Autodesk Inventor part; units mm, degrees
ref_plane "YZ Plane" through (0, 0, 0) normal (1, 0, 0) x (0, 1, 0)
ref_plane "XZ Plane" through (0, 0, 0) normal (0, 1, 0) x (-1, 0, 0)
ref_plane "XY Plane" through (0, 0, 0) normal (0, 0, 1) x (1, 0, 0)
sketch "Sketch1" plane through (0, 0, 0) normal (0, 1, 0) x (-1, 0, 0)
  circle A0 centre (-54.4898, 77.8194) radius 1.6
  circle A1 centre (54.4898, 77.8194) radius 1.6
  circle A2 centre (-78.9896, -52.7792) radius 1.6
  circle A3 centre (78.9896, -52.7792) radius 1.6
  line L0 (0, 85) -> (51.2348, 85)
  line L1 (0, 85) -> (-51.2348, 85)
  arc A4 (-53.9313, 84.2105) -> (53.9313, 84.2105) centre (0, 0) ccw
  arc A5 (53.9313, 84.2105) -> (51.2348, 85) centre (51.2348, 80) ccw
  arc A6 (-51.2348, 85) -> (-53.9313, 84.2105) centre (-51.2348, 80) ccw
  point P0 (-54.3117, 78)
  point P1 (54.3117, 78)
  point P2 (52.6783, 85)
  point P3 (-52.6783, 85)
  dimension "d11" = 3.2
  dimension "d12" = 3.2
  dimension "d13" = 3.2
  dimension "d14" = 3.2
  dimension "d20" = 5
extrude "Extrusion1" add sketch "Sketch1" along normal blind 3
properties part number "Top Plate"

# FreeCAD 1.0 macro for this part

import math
import FreeCAD as App
import Part
import Sketcher

V = App.Vector

doc = App.newDocument("Part")
body = doc.addObject("PartDesign::Body", "Body")

# Sketch on XZ plane
sketch1 = body.newObject("Sketcher::SketchObject", "Sketch")
sketch1.AttachmentSupport = (doc.getObject("XZ_Plane"), [""])
sketch1.MapMode = "FlatFace"
sketch1.addGeometry([
    Part.LineSegment(V(-51.2, 85, 0), V(51.2, 85, 0)),  # 0
    Part.ArcOfCircle(Part.Circle(V(51.2, 80, 0), V(0, 0, 1), 5), math.radians(57), math.radians(90)),  # 1
    Part.ArcOfCircle(Part.Circle(V(0, 0, 0), V(0, 0, 1), 100), math.radians(123), math.radians(417)),  # 2
    Part.ArcOfCircle(Part.Circle(V(-51.2, 80, 0), V(0, 0, 1), 5), math.radians(90), math.radians(123)),  # 3
    Part.Circle(V(79, -52.8, 0), V(0, 0, 1), 1.6),  # 4
    Part.Circle(V(-79, -52.8, 0), V(0, 0, 1), 1.6),  # 5
    Part.Circle(V(54.5, 77.8, 0), V(0, 0, 1), 1.6),  # 6
    Part.Circle(V(-54.5, 77.8, 0), V(0, 0, 1), 1.6),  # 7
], False)
sketch1.addConstraint([
    Sketcher.Constraint("Tangent", 0, 2, 1, 2),
    Sketcher.Constraint("Tangent", 1, 1, 2, 2),
    Sketcher.Constraint("Tangent", 2, 1, 3, 2),
    Sketcher.Constraint("Tangent", 3, 1, 0, 1),
    Sketcher.Constraint("Horizontal", 0),
    Sketcher.Constraint("Coincident", 2, 3, -1, 1),
    Sketcher.Constraint("Equal", 1, 3),
    Sketcher.Constraint("Equal", 4, 5),
    Sketcher.Constraint("Equal", 5, 6),
    Sketcher.Constraint("Equal", 6, 7),
    Sketcher.Constraint("Symmetric", 4, 3, 5, 3, -2),
    Sketcher.Constraint("Symmetric", 6, 3, 7, 3, -2),
    Sketcher.Constraint("Radius", 1, 5.0),
    Sketcher.Constraint("Diameter", 4, 3.2),
    Sketcher.Constraint("Radius", 2, 100.0),
    Sketcher.Constraint("DistanceY", -1, 1, 1, 3, 80.0),
    Sketcher.Constraint("DistanceX", 1, 3, 6, 3, 3.255),
    Sketcher.Constraint("DistanceY", 7, 3, 2, 1, 6.391),
    Sketcher.Constraint("DistanceX", -1, 1, 4, 3, 78.9896),
    Sketcher.Constraint("DistanceY", 4, 3, -1, 1, 52.7792),
])
pad1 = body.newObject("PartDesign::Pad", "Pad")
pad1.Profile = sketch1
pad1.Length = 3
pad1.Reversed = True

doc.recompute()
